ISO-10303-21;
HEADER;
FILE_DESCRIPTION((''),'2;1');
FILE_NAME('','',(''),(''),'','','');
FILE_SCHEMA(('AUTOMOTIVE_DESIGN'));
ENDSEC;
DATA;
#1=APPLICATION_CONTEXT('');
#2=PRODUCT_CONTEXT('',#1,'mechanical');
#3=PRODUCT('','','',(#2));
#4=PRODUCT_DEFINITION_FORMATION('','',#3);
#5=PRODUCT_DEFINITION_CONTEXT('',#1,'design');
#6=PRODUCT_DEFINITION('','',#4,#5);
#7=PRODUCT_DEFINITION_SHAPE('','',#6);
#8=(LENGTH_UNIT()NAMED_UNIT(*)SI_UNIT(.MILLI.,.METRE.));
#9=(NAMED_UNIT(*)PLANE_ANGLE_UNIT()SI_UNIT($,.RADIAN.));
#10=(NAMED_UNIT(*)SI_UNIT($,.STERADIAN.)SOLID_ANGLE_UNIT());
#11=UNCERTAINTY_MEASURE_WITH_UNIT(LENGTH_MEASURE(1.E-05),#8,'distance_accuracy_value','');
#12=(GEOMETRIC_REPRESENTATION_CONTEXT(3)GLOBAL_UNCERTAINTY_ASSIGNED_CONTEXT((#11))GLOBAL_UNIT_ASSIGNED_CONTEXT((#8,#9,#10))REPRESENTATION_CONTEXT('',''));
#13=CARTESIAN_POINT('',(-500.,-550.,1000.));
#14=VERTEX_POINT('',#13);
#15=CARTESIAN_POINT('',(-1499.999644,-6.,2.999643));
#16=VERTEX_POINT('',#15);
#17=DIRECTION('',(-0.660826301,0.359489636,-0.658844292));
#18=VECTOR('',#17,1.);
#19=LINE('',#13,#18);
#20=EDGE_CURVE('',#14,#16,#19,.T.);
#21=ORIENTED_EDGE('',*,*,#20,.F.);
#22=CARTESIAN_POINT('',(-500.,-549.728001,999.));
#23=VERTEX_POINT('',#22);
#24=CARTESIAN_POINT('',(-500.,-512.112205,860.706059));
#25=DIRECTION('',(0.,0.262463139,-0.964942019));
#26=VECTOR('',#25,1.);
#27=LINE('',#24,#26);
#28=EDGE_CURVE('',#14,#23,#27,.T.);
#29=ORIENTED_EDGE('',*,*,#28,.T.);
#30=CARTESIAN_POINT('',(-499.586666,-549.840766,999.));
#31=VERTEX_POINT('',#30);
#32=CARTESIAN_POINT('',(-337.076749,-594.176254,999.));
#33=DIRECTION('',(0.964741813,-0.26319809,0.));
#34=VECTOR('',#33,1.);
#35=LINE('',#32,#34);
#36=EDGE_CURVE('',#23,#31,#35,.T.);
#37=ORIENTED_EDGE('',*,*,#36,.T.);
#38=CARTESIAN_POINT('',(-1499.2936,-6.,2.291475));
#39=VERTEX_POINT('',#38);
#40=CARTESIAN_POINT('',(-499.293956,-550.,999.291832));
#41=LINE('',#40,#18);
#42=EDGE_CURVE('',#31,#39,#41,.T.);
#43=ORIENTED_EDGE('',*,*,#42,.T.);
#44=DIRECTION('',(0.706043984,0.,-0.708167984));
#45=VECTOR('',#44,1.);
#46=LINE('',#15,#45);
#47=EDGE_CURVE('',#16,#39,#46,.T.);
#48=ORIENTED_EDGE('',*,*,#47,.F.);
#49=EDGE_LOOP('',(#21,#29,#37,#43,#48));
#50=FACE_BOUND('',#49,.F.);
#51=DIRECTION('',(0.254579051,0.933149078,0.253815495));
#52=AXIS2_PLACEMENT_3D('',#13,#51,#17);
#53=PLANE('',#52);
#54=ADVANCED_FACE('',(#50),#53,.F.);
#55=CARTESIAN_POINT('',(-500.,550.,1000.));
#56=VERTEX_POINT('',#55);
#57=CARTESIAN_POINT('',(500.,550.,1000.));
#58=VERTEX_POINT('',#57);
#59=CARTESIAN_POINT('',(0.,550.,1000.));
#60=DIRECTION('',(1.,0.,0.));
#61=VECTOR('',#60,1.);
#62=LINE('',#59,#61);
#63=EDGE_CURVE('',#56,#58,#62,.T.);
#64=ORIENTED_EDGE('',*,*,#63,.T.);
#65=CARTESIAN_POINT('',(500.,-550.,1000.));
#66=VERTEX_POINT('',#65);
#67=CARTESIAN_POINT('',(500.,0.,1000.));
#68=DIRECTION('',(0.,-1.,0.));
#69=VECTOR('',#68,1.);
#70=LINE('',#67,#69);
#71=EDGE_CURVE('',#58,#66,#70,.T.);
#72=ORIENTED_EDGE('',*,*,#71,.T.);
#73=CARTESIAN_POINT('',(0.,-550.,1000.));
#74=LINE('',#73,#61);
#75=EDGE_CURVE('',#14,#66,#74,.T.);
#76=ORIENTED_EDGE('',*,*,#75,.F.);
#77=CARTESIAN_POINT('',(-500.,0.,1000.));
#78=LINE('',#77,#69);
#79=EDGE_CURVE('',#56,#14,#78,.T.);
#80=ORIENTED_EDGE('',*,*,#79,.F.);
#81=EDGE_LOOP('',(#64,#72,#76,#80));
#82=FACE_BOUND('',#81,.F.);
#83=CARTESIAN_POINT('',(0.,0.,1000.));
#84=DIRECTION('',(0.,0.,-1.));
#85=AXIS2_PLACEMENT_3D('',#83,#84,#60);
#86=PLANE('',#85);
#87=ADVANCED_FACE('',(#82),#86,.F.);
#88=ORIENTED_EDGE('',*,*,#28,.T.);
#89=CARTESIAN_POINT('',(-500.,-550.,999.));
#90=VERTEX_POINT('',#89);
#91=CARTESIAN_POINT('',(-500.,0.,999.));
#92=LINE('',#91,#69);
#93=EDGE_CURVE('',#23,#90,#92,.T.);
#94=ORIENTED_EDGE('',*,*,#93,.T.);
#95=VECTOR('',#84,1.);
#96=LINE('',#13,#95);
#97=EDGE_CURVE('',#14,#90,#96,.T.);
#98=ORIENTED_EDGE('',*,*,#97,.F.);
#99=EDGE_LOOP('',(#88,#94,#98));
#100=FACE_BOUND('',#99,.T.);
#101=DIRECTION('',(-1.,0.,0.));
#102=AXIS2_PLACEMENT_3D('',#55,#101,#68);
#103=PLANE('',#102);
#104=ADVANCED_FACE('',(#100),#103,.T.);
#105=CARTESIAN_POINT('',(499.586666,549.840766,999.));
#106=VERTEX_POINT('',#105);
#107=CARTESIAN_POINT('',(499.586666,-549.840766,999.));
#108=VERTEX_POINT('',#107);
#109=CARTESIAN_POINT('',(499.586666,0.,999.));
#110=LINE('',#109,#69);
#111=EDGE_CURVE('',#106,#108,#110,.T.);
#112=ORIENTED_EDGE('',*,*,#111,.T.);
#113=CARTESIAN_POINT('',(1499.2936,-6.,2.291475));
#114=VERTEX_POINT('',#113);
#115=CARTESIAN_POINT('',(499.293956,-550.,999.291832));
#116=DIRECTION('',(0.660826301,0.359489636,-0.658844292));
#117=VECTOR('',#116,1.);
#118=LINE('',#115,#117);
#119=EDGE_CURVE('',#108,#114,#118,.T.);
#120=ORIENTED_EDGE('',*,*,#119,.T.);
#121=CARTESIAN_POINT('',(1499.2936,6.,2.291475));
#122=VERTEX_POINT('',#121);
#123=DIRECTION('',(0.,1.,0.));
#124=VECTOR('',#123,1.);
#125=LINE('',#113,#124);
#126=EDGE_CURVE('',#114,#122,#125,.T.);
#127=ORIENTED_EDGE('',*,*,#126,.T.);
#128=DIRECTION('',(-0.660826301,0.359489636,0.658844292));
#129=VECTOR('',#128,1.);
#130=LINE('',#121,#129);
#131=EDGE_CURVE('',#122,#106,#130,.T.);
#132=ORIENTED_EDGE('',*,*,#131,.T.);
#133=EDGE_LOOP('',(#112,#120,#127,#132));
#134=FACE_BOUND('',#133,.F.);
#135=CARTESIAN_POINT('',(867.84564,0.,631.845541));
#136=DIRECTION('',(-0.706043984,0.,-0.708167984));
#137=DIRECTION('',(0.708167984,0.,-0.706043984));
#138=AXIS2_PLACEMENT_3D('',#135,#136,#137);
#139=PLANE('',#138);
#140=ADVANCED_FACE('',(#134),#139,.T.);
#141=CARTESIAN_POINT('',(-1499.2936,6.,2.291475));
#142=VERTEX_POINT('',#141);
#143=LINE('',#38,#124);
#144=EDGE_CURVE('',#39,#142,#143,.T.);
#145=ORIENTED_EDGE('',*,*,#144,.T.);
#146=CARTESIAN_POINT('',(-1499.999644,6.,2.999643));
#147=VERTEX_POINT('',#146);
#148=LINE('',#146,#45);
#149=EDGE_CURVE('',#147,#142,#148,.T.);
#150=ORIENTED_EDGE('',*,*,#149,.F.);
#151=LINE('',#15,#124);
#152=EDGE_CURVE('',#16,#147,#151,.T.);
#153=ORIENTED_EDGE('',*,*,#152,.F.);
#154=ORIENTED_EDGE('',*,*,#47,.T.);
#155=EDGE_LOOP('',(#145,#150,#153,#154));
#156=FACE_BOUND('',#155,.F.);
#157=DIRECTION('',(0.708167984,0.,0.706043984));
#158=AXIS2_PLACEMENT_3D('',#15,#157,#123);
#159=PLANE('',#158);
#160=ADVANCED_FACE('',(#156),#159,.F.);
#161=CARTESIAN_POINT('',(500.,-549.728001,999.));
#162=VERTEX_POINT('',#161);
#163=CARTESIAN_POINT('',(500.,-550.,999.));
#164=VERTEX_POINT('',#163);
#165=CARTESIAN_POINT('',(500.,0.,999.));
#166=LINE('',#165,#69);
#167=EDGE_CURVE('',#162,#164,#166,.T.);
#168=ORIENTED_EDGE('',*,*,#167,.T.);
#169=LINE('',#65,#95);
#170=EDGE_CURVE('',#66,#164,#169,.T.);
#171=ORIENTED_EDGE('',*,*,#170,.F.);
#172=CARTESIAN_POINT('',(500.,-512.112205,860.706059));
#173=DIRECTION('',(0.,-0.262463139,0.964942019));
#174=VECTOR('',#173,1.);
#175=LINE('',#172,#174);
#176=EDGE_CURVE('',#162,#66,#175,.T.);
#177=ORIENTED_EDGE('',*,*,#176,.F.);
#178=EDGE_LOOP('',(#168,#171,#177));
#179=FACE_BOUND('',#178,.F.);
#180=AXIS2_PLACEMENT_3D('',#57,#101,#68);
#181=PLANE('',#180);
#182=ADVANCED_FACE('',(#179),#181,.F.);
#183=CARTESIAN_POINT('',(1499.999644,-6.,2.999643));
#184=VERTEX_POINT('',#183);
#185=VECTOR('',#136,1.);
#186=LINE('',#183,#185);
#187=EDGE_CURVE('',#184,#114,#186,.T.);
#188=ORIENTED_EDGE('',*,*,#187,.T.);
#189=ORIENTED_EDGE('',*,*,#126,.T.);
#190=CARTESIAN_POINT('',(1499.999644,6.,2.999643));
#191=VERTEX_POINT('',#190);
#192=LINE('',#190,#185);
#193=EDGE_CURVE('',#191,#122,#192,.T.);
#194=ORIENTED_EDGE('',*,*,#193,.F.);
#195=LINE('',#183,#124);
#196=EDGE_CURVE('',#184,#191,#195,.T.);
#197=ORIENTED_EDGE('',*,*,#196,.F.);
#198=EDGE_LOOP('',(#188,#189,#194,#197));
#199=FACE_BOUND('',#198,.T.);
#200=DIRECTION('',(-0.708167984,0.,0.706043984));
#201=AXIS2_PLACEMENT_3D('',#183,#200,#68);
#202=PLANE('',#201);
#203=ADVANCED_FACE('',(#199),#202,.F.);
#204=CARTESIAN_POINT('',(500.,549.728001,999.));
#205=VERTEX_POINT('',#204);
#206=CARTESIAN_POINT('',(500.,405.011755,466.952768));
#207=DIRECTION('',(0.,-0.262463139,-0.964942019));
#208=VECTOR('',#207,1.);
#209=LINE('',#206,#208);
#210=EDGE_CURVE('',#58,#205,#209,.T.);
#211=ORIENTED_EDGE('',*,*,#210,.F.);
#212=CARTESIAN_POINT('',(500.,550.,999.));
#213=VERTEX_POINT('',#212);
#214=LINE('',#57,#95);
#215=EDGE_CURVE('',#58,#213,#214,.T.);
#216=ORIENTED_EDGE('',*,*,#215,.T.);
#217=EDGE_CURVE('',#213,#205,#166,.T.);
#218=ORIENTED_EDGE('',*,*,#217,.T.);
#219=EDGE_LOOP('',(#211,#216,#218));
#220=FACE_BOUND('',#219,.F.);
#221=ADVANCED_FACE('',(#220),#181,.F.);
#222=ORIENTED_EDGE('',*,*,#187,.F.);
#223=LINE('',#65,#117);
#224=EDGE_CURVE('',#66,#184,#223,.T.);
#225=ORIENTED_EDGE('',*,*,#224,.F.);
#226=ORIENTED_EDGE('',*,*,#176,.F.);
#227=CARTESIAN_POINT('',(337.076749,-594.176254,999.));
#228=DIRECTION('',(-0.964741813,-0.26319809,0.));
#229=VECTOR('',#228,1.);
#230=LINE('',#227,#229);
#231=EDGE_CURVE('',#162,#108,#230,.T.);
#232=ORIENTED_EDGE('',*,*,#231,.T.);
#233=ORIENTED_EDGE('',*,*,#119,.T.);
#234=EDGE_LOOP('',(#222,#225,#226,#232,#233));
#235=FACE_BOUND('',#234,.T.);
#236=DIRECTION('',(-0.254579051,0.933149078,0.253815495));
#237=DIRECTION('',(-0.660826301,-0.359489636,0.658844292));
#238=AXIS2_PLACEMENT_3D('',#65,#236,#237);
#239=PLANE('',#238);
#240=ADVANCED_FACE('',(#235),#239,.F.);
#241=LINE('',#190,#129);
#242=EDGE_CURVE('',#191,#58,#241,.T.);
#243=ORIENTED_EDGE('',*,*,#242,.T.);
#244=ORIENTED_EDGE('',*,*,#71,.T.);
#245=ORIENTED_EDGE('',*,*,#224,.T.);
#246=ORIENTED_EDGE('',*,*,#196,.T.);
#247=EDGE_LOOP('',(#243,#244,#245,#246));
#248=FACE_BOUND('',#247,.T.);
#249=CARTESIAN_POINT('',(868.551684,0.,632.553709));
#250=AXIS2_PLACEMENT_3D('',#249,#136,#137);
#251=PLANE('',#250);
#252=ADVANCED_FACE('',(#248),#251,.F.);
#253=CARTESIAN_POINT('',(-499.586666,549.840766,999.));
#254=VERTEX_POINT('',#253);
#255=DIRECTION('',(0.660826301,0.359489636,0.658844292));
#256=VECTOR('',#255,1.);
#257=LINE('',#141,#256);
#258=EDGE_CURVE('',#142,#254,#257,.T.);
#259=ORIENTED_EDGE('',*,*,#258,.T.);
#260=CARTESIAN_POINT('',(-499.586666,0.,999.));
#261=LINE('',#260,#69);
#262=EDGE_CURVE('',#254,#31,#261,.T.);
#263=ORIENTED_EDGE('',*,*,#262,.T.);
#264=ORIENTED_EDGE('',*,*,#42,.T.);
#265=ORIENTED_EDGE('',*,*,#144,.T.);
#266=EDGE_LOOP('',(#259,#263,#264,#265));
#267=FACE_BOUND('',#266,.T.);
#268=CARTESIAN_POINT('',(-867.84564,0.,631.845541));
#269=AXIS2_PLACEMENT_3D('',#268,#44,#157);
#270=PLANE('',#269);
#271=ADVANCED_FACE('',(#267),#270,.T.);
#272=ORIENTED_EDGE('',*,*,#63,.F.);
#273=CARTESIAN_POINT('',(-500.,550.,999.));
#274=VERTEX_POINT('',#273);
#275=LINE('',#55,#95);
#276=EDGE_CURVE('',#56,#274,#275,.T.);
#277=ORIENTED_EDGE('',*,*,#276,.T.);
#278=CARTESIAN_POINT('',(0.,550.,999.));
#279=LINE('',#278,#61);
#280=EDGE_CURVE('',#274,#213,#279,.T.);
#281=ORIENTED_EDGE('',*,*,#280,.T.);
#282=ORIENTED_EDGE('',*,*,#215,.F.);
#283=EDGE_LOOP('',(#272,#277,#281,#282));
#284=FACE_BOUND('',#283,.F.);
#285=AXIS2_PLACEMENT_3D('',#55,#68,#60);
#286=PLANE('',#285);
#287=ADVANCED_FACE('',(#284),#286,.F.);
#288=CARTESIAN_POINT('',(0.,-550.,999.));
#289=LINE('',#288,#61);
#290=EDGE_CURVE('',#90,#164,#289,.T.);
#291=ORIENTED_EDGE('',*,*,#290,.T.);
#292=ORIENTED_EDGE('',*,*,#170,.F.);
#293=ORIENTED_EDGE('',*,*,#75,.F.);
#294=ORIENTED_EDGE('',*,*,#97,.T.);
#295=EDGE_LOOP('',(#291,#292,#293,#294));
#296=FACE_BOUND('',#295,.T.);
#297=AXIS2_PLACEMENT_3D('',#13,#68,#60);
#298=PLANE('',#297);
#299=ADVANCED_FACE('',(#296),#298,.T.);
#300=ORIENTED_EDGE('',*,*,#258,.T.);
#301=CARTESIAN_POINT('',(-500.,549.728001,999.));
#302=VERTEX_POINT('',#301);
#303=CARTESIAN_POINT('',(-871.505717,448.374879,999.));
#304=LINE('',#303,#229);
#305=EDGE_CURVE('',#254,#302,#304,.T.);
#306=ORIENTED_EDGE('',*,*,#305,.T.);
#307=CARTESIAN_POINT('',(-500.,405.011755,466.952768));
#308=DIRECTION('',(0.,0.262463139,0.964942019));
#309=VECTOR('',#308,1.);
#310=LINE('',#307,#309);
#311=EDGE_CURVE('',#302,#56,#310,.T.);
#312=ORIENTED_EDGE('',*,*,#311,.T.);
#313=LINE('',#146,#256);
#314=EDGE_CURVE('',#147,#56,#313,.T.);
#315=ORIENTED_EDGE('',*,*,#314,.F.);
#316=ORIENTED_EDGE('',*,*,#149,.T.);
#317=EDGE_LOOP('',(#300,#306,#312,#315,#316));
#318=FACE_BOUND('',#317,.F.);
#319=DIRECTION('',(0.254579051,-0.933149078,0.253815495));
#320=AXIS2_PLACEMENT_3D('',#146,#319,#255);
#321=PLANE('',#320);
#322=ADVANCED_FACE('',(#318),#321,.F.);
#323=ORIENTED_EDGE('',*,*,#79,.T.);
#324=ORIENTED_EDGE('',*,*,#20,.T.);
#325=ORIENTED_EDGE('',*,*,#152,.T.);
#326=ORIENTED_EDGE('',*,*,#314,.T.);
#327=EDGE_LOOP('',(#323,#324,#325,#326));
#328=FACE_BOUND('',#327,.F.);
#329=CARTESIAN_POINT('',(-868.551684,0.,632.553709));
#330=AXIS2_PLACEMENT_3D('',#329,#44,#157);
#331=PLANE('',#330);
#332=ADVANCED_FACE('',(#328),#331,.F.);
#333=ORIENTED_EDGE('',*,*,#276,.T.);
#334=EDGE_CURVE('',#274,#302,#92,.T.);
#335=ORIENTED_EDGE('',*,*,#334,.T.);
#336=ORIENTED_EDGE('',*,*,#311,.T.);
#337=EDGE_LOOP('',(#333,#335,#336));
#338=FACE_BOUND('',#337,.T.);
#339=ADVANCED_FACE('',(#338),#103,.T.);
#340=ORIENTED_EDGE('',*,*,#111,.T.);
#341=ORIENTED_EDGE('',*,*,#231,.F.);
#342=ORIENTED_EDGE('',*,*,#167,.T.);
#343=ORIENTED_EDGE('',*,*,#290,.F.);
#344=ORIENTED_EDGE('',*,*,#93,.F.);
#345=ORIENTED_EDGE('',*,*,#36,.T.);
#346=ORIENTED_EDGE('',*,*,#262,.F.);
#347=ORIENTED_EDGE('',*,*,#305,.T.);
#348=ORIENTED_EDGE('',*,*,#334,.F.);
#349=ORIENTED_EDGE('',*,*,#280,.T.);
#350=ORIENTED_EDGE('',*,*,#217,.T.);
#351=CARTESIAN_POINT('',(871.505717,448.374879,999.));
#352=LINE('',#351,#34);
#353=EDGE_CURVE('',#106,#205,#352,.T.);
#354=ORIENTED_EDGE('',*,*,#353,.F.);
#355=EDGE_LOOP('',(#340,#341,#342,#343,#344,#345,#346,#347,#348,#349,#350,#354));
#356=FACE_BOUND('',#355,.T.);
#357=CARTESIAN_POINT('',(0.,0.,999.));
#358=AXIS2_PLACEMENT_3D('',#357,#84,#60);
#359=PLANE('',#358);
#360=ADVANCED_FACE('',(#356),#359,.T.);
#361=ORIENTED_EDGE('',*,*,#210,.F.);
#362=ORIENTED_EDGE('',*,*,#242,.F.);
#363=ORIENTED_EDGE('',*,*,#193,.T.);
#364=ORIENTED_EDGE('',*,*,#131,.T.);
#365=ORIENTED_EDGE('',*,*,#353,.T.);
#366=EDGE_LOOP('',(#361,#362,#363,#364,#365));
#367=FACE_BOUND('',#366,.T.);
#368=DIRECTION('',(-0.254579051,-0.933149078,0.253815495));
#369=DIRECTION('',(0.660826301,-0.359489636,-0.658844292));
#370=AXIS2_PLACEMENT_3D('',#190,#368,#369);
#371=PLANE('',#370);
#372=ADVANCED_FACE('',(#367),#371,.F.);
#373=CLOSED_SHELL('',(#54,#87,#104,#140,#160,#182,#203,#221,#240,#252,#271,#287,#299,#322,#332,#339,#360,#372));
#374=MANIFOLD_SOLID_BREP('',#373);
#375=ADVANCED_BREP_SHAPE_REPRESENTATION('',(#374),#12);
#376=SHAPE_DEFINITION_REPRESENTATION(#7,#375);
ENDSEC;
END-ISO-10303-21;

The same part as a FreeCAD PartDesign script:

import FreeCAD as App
import Part
import Sketcher

V = App.Vector

doc = App.newDocument("Part")
params = doc.addObject("Spreadsheet::Sheet", "Params")
for row, (alias, value) in enumerate([
    ("sketch1_width", "1000 mm"),
    ("sketch1_height", "1100 mm"),
    ("pad1_length", "1 mm"),
    ("sketch2_height", "1100.000002 mm"),
    ("sketch2_height2", "12 mm"),
    ("pad2_length", "1 mm"),
], start=1):
    params.set(f"A{row}", alias)
    params.set(f"B{row}", "=" + value)
    params.setAlias(f"B{row}", alias)

body = doc.addObject("PartDesign::Body", "Body")

# Sketch on XY plane
sketch1 = body.newObject("Sketcher::SketchObject", "Sketch")
sketch1.AttachmentSupport = (doc.getObject("XY_Plane"), [""])
sketch1.MapMode = "FlatFace"
sketch1.addGeometry([
    Part.LineSegment(V(-500, 550, 0), V(-500, -550, 0)),
    Part.LineSegment(V(-500, -550, 0), V(500, -550, 0)),
    Part.LineSegment(V(500, -550, 0), V(500, 550, 0)),
    Part.LineSegment(V(500, 550, 0), V(-500, 550, 0)),
], False)
sketch1.addConstraint([
    Sketcher.Constraint("Coincident", 0, 2, 1, 1),
    Sketcher.Constraint("Coincident", 1, 2, 2, 1),
    Sketcher.Constraint("Coincident", 2, 2, 3, 1),
    Sketcher.Constraint("Coincident", 3, 2, 0, 1),
    Sketcher.Constraint("Vertical", 0),
    Sketcher.Constraint("Horizontal", 1),
    Sketcher.Constraint("Vertical", 2),
    Sketcher.Constraint("Horizontal", 3),
    Sketcher.Constraint("Symmetric", 0, 2, 2, 2, -1, 1),
    Sketcher.Constraint("DistanceX", 1, 1, 1, 2, 1000.0),
    Sketcher.Constraint("DistanceY", 0, 2, 0, 1, 1100.0),
])
sketch1.setExpression("Constraints[9]", "Params.sketch1_width")
sketch1.setExpression("Constraints[10]", "Params.sketch1_height")
pad1 = body.newObject("PartDesign::Pad", "Pad")
pad1.Profile = sketch1
pad1.setExpression("Length", "Params.pad1_length")

# Sketch on an angled plane
sketch2 = body.newObject("Sketcher::SketchObject", "Sketch001")
sketch2.Placement = App.Placement(V(-500, 0, 0), App.Rotation(V(0.708167984, 0, -0.706043984), V(0, 1.000000001, 0), V(0.706043984, 0, 0.708167984), "ZXY"))
sketch2.addGeometry([
    Part.LineSegment(V(0, -550.000001, 0), V(0, 550.000001, 0)),
    Part.LineSegment(V(0, 550.000001, 0), V(-1412.093836, 6, 0)),
    Part.LineSegment(V(-1412.093836, 6, 0), V(-1412.093836, -6, 0)),
    Part.LineSegment(V(-1412.093836, -6, 0), V(0, -550.000001, 0)),
], False)
sketch2.addConstraint([
    Sketcher.Constraint("Coincident", 0, 2, 1, 1),
    Sketcher.Constraint("Coincident", 1, 2, 2, 1),
    Sketcher.Constraint("Coincident", 2, 2, 3, 1),
    Sketcher.Constraint("Coincident", 3, 2, 0, 1),
    Sketcher.Constraint("Vertical", 0),
    Sketcher.Constraint("Vertical", 2),
    Sketcher.Constraint("Symmetric", 0, 2, 3, 2, -1, 1),
    Sketcher.Constraint("Equal", 1, 3),
    Sketcher.Constraint("DistanceY", 0, 1, 0, 2, 1100.000002),
    Sketcher.Constraint("DistanceY", 2, 2, 2, 1, 12.0),
    Sketcher.Constraint("Distance", 1, 1513.256424),
])
sketch2.setExpression("Constraints[8]", "Params.sketch2_height")
sketch2.setExpression("Constraints[9]", "Params.sketch2_height2")
pad2 = body.newObject("PartDesign::Pad", "Pad001")
pad2.Profile = sketch2
pad2.setExpression("Length", "Params.pad2_length")
doc.recompute()

mirrored = body.newObject("PartDesign::Mirrored", "Mirrored")
mirrored.Originals = [pad2]
mirrored.MirrorPlane = (doc.getObject("YZ_Plane"), [""])
body.Tip = mirrored
body2 = doc.addObject("PartDesign::Body", "Body001")
doc.recompute()

body.Placement = App.Placement(V(0, 0, 1000), App.Rotation(V(1, 0, 0), 180))
boolean = body2.newObject("PartDesign::Boolean", "Boolean")
boolean.Type = "Fuse"
boolean.addObjects([body])

doc.recompute()
